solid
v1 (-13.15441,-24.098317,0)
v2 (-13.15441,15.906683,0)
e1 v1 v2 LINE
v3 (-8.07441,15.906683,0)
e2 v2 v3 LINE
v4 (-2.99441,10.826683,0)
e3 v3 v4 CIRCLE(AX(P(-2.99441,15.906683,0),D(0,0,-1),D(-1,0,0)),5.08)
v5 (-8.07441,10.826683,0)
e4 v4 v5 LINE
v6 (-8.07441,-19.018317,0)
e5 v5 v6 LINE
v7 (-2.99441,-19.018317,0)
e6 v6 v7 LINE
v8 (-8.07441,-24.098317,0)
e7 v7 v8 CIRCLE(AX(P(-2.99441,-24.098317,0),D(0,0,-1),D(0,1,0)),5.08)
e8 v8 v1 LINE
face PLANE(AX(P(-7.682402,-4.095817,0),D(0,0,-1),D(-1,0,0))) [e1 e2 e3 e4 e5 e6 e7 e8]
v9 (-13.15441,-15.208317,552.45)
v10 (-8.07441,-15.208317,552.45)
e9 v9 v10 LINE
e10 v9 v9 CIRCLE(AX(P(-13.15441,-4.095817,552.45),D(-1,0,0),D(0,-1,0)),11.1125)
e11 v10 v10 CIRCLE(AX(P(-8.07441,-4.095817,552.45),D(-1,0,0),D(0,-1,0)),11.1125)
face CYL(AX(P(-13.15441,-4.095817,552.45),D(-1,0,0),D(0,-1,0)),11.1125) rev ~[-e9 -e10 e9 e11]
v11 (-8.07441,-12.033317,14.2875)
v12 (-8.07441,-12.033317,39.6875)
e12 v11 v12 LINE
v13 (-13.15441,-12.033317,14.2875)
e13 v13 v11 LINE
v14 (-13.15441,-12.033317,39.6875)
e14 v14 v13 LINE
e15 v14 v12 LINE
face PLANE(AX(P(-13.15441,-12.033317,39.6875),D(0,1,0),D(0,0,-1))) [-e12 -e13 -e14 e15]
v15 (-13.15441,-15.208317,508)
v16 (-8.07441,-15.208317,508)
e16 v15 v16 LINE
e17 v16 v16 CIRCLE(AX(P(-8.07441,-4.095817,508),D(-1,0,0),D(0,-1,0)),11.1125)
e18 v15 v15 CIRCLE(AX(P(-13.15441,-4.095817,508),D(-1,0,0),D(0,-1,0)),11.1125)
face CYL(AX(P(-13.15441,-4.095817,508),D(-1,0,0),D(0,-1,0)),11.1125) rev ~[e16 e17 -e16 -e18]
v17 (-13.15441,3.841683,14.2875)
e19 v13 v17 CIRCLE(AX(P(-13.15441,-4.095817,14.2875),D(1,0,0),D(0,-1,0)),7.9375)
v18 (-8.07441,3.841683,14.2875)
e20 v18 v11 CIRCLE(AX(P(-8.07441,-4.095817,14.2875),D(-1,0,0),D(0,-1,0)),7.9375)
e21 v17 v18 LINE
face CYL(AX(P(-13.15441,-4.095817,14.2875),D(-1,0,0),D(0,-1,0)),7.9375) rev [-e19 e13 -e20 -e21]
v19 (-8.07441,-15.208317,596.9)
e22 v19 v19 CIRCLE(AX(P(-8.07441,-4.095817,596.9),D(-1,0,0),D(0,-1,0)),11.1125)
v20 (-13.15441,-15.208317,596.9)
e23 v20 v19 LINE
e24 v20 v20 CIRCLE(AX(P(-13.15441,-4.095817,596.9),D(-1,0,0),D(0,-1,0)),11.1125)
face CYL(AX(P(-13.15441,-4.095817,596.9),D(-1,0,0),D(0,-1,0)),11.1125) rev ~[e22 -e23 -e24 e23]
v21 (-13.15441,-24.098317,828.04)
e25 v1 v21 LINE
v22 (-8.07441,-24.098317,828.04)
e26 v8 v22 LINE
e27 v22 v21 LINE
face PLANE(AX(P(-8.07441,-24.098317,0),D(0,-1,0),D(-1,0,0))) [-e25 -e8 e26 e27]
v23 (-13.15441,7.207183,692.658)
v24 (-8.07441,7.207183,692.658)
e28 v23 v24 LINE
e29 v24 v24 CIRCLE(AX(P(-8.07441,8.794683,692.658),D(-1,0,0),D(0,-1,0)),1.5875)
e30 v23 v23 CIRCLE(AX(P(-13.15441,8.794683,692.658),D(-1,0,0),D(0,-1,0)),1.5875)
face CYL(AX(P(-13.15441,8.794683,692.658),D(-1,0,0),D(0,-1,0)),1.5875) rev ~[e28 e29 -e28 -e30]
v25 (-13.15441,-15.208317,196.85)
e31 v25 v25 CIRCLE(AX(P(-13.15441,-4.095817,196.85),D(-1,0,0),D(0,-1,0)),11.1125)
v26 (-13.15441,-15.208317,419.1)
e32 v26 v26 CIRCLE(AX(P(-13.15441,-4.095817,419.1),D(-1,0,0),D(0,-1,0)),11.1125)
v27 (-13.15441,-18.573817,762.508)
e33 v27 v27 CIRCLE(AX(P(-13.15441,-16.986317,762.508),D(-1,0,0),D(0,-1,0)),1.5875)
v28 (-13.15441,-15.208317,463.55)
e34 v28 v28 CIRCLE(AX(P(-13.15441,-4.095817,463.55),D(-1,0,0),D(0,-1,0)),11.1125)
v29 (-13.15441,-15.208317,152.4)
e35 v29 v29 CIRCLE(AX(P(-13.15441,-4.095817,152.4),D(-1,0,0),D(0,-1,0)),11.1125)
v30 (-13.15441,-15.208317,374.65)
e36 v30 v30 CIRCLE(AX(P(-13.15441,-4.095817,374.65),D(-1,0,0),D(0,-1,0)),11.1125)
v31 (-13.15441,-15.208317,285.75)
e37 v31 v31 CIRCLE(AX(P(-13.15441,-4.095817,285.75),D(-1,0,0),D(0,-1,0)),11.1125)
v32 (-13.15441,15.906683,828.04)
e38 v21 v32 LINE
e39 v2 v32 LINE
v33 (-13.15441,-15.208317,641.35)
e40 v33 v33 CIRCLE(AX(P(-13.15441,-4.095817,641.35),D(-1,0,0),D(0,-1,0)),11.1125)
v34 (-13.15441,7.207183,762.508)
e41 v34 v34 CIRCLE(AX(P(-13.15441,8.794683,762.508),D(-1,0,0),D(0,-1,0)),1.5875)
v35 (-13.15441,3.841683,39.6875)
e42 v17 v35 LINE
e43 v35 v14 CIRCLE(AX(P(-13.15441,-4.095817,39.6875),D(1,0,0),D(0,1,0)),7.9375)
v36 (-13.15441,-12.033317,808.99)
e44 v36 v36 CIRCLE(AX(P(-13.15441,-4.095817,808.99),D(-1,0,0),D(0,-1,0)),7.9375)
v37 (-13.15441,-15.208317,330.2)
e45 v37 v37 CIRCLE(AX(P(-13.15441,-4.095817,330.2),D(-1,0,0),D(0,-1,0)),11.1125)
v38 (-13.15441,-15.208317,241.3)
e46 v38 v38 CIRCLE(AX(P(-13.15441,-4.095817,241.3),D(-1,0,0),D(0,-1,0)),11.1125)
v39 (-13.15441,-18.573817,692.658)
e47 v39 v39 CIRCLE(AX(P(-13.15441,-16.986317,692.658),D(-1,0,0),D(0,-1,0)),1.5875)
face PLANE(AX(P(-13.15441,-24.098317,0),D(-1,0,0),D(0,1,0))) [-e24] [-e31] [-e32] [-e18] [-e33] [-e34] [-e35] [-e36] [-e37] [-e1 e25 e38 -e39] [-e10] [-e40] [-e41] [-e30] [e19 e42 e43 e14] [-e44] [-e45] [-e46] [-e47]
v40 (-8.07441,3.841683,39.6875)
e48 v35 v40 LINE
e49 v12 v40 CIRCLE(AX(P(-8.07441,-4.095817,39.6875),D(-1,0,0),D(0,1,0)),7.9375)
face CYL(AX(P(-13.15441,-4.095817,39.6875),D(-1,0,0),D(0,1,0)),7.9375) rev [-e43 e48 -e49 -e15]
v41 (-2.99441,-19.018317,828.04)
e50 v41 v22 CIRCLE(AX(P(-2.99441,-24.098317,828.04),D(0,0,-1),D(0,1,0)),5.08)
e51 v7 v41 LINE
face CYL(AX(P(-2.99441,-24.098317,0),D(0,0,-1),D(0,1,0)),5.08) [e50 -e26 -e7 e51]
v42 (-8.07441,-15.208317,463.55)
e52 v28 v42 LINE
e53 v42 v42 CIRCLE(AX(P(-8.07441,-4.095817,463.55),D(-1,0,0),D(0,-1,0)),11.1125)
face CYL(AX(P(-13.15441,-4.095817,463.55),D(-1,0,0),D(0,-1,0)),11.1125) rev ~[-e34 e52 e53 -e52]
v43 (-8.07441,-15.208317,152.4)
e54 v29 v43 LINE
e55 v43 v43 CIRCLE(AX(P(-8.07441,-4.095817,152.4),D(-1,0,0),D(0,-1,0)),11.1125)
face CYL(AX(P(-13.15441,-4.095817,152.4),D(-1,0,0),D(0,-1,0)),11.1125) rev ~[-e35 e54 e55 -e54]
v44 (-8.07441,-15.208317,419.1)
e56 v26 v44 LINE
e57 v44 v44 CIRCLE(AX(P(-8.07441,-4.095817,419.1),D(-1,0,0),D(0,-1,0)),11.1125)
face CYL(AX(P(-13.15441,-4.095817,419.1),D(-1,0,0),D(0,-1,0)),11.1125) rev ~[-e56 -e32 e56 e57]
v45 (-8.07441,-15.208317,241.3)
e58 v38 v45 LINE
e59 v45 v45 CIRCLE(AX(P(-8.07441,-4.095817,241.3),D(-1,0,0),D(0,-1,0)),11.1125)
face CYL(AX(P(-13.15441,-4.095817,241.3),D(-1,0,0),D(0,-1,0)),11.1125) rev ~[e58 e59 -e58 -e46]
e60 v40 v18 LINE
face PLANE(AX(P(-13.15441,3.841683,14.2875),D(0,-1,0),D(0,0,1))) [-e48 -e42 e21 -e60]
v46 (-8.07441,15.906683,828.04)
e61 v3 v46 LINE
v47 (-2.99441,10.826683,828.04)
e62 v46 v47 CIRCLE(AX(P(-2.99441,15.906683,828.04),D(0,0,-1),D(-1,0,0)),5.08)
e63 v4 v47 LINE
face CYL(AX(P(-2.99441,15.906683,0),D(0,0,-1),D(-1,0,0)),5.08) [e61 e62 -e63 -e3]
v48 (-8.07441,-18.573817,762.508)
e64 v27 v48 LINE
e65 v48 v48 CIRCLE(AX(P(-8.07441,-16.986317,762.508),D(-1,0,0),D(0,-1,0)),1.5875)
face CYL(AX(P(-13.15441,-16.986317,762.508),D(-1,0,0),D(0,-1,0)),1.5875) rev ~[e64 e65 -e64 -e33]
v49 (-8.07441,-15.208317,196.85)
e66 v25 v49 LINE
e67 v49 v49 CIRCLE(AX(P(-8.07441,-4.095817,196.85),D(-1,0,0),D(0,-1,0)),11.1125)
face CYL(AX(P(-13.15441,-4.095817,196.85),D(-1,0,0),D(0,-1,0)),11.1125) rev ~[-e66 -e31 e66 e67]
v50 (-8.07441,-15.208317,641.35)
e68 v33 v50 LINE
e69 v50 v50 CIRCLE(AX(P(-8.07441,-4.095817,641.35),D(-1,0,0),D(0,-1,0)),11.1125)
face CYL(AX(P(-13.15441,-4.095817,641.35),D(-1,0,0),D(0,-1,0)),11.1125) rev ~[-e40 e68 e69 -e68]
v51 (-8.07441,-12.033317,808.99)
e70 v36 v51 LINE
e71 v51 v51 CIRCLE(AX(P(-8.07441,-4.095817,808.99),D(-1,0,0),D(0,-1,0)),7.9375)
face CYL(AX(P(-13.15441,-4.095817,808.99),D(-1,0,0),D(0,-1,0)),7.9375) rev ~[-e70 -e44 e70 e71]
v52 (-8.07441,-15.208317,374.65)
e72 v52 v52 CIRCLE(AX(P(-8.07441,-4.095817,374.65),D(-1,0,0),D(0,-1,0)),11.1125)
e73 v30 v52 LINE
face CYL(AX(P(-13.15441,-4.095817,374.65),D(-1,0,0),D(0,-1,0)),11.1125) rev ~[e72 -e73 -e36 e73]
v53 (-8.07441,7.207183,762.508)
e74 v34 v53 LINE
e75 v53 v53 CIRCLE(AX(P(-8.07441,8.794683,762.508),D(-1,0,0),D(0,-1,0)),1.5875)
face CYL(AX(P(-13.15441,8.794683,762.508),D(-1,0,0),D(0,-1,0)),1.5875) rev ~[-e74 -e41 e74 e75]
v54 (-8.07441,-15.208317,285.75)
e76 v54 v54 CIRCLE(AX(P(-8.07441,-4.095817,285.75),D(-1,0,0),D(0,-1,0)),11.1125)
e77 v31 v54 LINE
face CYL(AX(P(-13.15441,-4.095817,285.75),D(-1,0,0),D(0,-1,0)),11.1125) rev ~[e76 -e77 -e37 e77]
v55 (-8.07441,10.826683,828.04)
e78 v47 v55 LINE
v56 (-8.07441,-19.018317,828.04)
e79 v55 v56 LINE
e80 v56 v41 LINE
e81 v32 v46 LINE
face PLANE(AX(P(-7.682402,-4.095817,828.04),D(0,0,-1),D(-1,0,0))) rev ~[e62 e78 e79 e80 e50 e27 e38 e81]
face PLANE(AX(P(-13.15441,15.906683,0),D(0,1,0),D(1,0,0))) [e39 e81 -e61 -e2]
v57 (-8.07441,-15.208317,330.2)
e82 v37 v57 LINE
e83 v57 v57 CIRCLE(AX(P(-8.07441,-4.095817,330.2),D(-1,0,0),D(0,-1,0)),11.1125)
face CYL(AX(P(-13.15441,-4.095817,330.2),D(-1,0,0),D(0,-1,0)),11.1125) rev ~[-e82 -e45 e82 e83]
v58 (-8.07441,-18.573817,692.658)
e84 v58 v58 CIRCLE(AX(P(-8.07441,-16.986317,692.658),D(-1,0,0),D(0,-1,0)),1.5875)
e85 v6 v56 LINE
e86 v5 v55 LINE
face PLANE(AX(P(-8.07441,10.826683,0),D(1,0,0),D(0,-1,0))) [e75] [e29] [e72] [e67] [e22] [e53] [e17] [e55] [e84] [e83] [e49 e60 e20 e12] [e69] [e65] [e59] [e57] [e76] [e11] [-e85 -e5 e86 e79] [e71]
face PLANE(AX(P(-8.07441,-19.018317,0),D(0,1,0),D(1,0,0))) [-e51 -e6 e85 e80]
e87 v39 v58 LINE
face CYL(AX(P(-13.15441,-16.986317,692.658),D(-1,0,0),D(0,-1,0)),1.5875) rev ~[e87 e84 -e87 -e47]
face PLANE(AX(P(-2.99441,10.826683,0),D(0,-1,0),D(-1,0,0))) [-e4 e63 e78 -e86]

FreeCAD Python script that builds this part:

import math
import FreeCAD as App
import Part
import Sketcher
Q = App.Units.Quantity

doc = App.newDocument("Part")
body = doc.addObject("PartDesign::Body", "Body")

sketch1 = body.newObject("Sketcher::SketchObject", "Sketch")
sketch1.AttachmentSupport = (doc.getObject("XY_Plane"), [""])
sketch1.MapMode = "FlatFace"
sketch1.addGeometry(Part.LineSegment(App.Vector(-8, 16, 0), App.Vector(-13, 16, 0)), False)
sketch1.addGeometry(Part.LineSegment(App.Vector(-13, 16, 0), App.Vector(-13, -24, 0)), False)
sketch1.addGeometry(Part.LineSegment(App.Vector(-13, -24, 0), App.Vector(-8, -24, 0)), False)
sketch1.addGeometry(Part.ArcOfCircle(Part.Circle(App.Vector(-3, -24, 0), App.Vector(0, 0, 1), 5), math.radians(180), math.radians(450)), False)
sketch1.addGeometry(Part.LineSegment(App.Vector(-3, -19, 0), App.Vector(-8, -19, 0)), False)
sketch1.addGeometry(Part.LineSegment(App.Vector(-8, -19, 0), App.Vector(-8, 11, 0)), False)
sketch1.addGeometry(Part.LineSegment(App.Vector(-8, 11, 0), App.Vector(-3, 11, 0)), False)
sketch1.addGeometry(Part.ArcOfCircle(Part.Circle(App.Vector(-3, 16, 0), App.Vector(0, 0, 1), 5), math.radians(-90), math.radians(180)), False)
sketch1.addConstraint(Sketcher.Constraint("Coincident", 0, 2, 1, 1))
sketch1.addConstraint(Sketcher.Constraint("Coincident", 1, 2, 2, 1))
sketch1.addConstraint(Sketcher.Constraint("Coincident", 2, 2, 3, 1))
sketch1.addConstraint(Sketcher.Constraint("Tangent", 3, 2, 4, 1))
sketch1.addConstraint(Sketcher.Constraint("Coincident", 4, 2, 5, 1))
sketch1.addConstraint(Sketcher.Constraint("Coincident", 5, 2, 6, 1))
sketch1.addConstraint(Sketcher.Constraint("Tangent", 6, 2, 7, 1))
sketch1.addConstraint(Sketcher.Constraint("Coincident", 7, 2, 0, 1))
sketch1.addConstraint(Sketcher.Constraint("Horizontal", 0))
sketch1.addConstraint(Sketcher.Constraint("Vertical", 1))
sketch1.addConstraint(Sketcher.Constraint("Horizontal", 2))
sketch1.addConstraint(Sketcher.Constraint("Horizontal", 4))
sketch1.addConstraint(Sketcher.Constraint("Vertical", 5))
sketch1.addConstraint(Sketcher.Constraint("Horizontal", 6))
sketch1.addConstraint(Sketcher.Constraint("Equal", 3, 7))
sketch1.addConstraint(Sketcher.Constraint("Horizontal", 7, 3, 0, 2))
sketch1.addConstraint(Sketcher.Constraint("Horizontal", 3, 3, 1, 2))
sketch1.addConstraint(Sketcher.Constraint("Vertical", 3, 3, 7, 3))
sketch1.addConstraint(Sketcher.Constraint("Vertical", 2, 2, 4, 2))
sketch1.addConstraint(Sketcher.Constraint("Equal", 2, 4))
sketch1.addConstraint(Sketcher.Constraint("Radius", 3, Q("0.2 in")))
sketch1.addConstraint(Sketcher.Constraint("DistanceY", 1, 2, 1, 1, Q("1.575 in")))
sketch1.addConstraint(Sketcher.Constraint("DistanceX", 3, 3, -1, 1, Q("2.99441 mm")))
sketch1.addConstraint(Sketcher.Constraint("DistanceY", 3, 3, -1, 1, Q("24.098317 mm")))
pad1 = body.newObject("PartDesign::Pad", "Pad")
pad1.Profile = sketch1
pad1.Length = Q("32.6 in")

sketch2 = body.newObject("Sketcher::SketchObject", "Sketch001")
sketch2.AttachmentSupport = (doc.getObject("YZ_Plane"), [""])
sketch2.MapMode = "FlatFace"
sketch2.AttachmentOffset = App.Placement(App.Vector(0, 0, -13.15441), App.Rotation())
sketch2.addGeometry(Part.Circle(App.Vector(-4, 152, 0), App.Vector(0, 0, 1), 11), False)
sketch2.addConstraint(Sketcher.Constraint("Diameter", 0, Q("0.875 in")))
sketch2.addConstraint(Sketcher.Constraint("DistanceY", -1, 1, 0, 3, Q("6 in")))
sketch2.addConstraint(Sketcher.Constraint("DistanceX", 0, 3, -1, 1, Q("4.095817 mm")))
pocket1 = body.newObject("PartDesign::Pocket", "Pocket")
pocket1.Profile = sketch2
pocket1.Length = Q("1 in")
pocket1.Reversed = True
doc.recompute()

linearpattern = body.newObject("PartDesign::LinearPattern", "LinearPattern")
linearpattern.Originals = [pocket1]
linearpattern.Direction = (doc.getObject("Z_Axis"), [""])
linearpattern.Mode = "offset"
linearpattern.Offset = Q("1.75 in")
linearpattern.Occurrences = 12
body.Tip = linearpattern

sketch3 = body.newObject("Sketcher::SketchObject", "Sketch002")
sketch3.AttachmentSupport = (doc.getObject("YZ_Plane"), [""])
sketch3.MapMode = "FlatFace"
sketch3.AttachmentOffset = App.Placement(App.Vector(0, 0, -13.15441), App.Rotation())
sketch3.addGeometry(Part.Circle(App.Vector(-4, 809, 0), App.Vector(0, 0, 1), 8), False)
sketch3.addGeometry(Part.LineSegment(App.Vector(4, 40, 0), App.Vector(4, 14, 0)), False)
sketch3.addGeometry(Part.ArcOfCircle(Part.Circle(App.Vector(-4, 14, 0), App.Vector(0, 0, 1), 8), math.radians(180), math.radians(360)), False)
sketch3.addGeometry(Part.LineSegment(App.Vector(-12, 14, 0), App.Vector(-12, 40, 0)), False)
sketch3.addGeometry(Part.ArcOfCircle(Part.Circle(App.Vector(-4, 40, 0), App.Vector(0, 0, 1), 8), math.radians(0), math.radians(180)), False)
sketch3.addConstraint(Sketcher.Constraint("Tangent", 1, 2, 2, 2))
sketch3.addConstraint(Sketcher.Constraint("Tangent", 2, 1, 3, 1))
sketch3.addConstraint(Sketcher.Constraint("Tangent", 3, 2, 4, 2))
sketch3.addConstraint(Sketcher.Constraint("Tangent", 4, 1, 1, 1))
sketch3.addConstraint(Sketcher.Constraint("Vertical", 1))
sketch3.addConstraint(Sketcher.Constraint("Vertical", 3))
sketch3.addConstraint(Sketcher.Constraint("Equal", 0, 2))
sketch3.addConstraint(Sketcher.Constraint("Vertical", 0, 3, 2, 3))
sketch3.addConstraint(Sketcher.Constraint("DistanceY", 1, 2, 1, 1, Q("1 in")))
sketch3.addConstraint(Sketcher.Constraint("Diameter", 0, Q("0.625 in")))
sketch3.addConstraint(Sketcher.Constraint("DistanceY", -1, 1, 0, 3, Q("31.85 in")))
sketch3.addConstraint(Sketcher.Constraint("DistanceY", -1, 1, 2, 3, Q("0.5625 in")))
sketch3.addConstraint(Sketcher.Constraint("DistanceX", 0, 3, -1, 1, Q("4.095817 mm")))
pocket2 = body.newObject("PartDesign::Pocket", "Pocket001")
pocket2.Profile = sketch3
pocket2.Length = Q("1 in")
pocket2.Reversed = True

sketch4 = body.newObject("Sketcher::SketchObject", "Sketch003")
sketch4.AttachmentSupport = (doc.getObject("YZ_Plane"), [""])
sketch4.MapMode = "FlatFace"
sketch4.AttachmentOffset = App.Placement(App.Vector(0, 0, -13.15441), App.Rotation())
sketch4.addGeometry(Part.Circle(App.Vector(8.8, 692.7, 0), App.Vector(0, 0, 1), 1.6), False)
sketch4.addGeometry(Part.Circle(App.Vector(8.8, 762.5, 0), App.Vector(0, 0, 1), 1.6), False)
sketch4.addGeometry(Part.Circle(App.Vector(-17, 762.5, 0), App.Vector(0, 0, 1), 1.6), False)
sketch4.addGeometry(Part.Circle(App.Vector(-17, 692.7, 0), App.Vector(0, 0, 1), 1.6), False)
sketch4.addConstraint(Sketcher.Constraint("Equal", 0, 1))
sketch4.addConstraint(Sketcher.Constraint("Equal", 1, 2))
sketch4.addConstraint(Sketcher.Constraint("Equal", 2, 3))
sketch4.addConstraint(Sketcher.Constraint("Horizontal", 1, 3, 2, 3))
sketch4.addConstraint(Sketcher.Constraint("Horizontal", 0, 3, 3, 3))
sketch4.addConstraint(Sketcher.Constraint("Vertical", 0, 3, 1, 3))
sketch4.addConstraint(Sketcher.Constraint("Vertical", 2, 3, 3, 3))
sketch4.addConstraint(Sketcher.Constraint("Diameter", 0, Q("0.125 in")))
sketch4.addConstraint(Sketcher.Constraint("DistanceY", -1, 1, 0, 3, Q("27.27 in")))
sketch4.addConstraint(Sketcher.Constraint("DistanceY", -1, 1, 1, 3, Q("30.02 in")))
sketch4.addConstraint(Sketcher.Constraint("DistanceX", 2, 3, 1, 3, Q("1.015 in")))
sketch4.addConstraint(Sketcher.Constraint("DistanceX", -1, 1, 0, 3, Q("8.794683 mm")))
pocket3 = body.newObject("PartDesign::Pocket", "Pocket002")
pocket3.Profile = sketch4
pocket3.Length = Q("0.5 in")
pocket3.Reversed = True

doc.recompute()
